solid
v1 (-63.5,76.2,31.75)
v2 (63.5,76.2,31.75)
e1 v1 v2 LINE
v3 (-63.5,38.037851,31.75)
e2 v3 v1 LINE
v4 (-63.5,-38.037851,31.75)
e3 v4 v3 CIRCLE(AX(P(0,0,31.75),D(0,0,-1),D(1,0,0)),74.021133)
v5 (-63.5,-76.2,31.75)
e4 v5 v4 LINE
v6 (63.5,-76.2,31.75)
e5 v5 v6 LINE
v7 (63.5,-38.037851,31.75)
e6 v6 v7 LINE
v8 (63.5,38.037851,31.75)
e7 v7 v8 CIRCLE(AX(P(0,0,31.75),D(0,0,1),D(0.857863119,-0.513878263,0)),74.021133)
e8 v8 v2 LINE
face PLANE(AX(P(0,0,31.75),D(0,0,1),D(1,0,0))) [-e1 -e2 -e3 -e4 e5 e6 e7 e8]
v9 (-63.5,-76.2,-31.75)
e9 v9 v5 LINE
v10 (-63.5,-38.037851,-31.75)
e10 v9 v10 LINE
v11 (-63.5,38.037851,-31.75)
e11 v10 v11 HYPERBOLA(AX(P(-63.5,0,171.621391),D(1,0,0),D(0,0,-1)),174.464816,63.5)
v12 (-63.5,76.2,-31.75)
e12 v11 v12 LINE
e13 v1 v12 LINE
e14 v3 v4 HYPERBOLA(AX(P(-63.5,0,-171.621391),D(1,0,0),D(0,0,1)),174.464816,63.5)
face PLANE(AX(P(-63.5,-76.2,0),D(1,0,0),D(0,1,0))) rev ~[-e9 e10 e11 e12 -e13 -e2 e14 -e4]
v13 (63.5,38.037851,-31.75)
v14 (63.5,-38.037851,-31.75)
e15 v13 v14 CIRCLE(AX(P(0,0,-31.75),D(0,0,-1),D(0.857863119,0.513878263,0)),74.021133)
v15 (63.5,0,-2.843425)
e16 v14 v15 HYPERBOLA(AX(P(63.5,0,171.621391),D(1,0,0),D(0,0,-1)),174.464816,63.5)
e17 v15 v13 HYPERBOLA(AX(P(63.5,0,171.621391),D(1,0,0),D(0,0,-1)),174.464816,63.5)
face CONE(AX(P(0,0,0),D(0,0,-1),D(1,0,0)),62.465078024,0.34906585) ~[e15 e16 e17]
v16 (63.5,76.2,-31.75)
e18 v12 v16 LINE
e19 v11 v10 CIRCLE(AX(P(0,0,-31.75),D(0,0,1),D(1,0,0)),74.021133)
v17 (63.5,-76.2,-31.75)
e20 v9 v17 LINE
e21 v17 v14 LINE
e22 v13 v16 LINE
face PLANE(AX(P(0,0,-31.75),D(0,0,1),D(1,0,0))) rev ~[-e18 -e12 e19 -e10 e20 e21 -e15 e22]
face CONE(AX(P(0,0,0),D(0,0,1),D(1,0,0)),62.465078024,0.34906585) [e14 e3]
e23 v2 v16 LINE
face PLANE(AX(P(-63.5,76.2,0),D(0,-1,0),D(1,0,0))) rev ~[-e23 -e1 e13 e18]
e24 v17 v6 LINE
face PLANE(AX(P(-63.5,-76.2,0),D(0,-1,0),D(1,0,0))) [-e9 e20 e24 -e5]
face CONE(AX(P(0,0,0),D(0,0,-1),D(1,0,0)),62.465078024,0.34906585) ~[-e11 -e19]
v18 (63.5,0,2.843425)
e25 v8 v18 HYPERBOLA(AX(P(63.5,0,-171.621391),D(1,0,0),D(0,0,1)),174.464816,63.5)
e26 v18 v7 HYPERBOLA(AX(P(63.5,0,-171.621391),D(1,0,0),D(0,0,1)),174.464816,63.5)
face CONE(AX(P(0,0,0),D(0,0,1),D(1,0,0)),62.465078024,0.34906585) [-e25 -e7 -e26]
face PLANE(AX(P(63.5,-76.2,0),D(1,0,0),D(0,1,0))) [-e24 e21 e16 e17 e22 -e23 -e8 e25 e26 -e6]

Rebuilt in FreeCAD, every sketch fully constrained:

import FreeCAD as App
import Part
import Sketcher
Q = App.Units.Quantity


def add_polygon(sketch, points):
    """Adds a closed chain of lines whose ends are joined by coincident constraints."""
    first, n = sketch.GeometryCount, len(points)
    for a, b in zip(points, points[1:] + points[:1]):
        sketch.addGeometry(Part.LineSegment(App.Vector(*a, 0), App.Vector(*b, 0)), False)
    for i in range(n):
        sketch.addConstraint(Sketcher.Constraint("Coincident", first + i, 2, first + (i + 1) % n, 1))

doc = App.newDocument("Part")
body = doc.addObject("PartDesign::Body", "Body")

# Sketch on XY plane
sketch1 = body.newObject("Sketcher::SketchObject", "Sketch")
sketch1.AttachmentSupport = (doc.getObject("XY_Plane"), [""])
sketch1.MapMode = "FlatFace"
add_polygon(sketch1, [(-64, 76), (-64, -76), (64, -76), (64, 76)])  # lines 0-3
sketch1.addGeometry(Part.Circle(App.Vector(0, 0, 0), App.Vector(0, 0, 1), 62), False)  # 4
sketch1.addConstraint(Sketcher.Constraint("Vertical", 0))
sketch1.addConstraint(Sketcher.Constraint("Horizontal", 1))
sketch1.addConstraint(Sketcher.Constraint("Vertical", 2))
sketch1.addConstraint(Sketcher.Constraint("Horizontal", 3))
sketch1.addConstraint(Sketcher.Constraint("Coincident", 4, 3, -1, 1))
sketch1.addConstraint(Sketcher.Constraint("Symmetric", 0, 2, 2, 2, -1, 1))
sketch1.addConstraint(Sketcher.Constraint("DistanceX", 1, 1, 1, 2, Q("5 in")))
sketch1.addConstraint(Sketcher.Constraint("DistanceY", 0, 2, 0, 1, Q("6 in")))
sketch1.addConstraint(Sketcher.Constraint("Diameter", 4, 124.930156))
pad1 = body.newObject("PartDesign::Pad", "Pad")
pad1.Profile = sketch1
pad1.Length = Q("2.5 in")
pad1.Midplane = True

# Sketch on XY plane
sketch2 = body.newObject("Sketcher::SketchObject", "Sketch001")
sketch2.AttachmentSupport = (doc.getObject("XY_Plane"), [""])
sketch2.MapMode = "FlatFace"
sketch2.addGeometry(Part.Circle(App.Vector(0, 0, 0), App.Vector(0, 0, 1), 62), False)
sketch2.addConstraint(Sketcher.Constraint("Coincident", 0, 3, -1, 1))
sketch2.addConstraint(Sketcher.Constraint("Diameter", 0, 124.930156))
pad2 = body.newObject("PartDesign::Pad", "Pad001")
pad2.Profile = sketch2
pad2.Length = Q("2.5 in")
pad2.Midplane = True
pad2.TaperAngle = 20

doc.recompute()
